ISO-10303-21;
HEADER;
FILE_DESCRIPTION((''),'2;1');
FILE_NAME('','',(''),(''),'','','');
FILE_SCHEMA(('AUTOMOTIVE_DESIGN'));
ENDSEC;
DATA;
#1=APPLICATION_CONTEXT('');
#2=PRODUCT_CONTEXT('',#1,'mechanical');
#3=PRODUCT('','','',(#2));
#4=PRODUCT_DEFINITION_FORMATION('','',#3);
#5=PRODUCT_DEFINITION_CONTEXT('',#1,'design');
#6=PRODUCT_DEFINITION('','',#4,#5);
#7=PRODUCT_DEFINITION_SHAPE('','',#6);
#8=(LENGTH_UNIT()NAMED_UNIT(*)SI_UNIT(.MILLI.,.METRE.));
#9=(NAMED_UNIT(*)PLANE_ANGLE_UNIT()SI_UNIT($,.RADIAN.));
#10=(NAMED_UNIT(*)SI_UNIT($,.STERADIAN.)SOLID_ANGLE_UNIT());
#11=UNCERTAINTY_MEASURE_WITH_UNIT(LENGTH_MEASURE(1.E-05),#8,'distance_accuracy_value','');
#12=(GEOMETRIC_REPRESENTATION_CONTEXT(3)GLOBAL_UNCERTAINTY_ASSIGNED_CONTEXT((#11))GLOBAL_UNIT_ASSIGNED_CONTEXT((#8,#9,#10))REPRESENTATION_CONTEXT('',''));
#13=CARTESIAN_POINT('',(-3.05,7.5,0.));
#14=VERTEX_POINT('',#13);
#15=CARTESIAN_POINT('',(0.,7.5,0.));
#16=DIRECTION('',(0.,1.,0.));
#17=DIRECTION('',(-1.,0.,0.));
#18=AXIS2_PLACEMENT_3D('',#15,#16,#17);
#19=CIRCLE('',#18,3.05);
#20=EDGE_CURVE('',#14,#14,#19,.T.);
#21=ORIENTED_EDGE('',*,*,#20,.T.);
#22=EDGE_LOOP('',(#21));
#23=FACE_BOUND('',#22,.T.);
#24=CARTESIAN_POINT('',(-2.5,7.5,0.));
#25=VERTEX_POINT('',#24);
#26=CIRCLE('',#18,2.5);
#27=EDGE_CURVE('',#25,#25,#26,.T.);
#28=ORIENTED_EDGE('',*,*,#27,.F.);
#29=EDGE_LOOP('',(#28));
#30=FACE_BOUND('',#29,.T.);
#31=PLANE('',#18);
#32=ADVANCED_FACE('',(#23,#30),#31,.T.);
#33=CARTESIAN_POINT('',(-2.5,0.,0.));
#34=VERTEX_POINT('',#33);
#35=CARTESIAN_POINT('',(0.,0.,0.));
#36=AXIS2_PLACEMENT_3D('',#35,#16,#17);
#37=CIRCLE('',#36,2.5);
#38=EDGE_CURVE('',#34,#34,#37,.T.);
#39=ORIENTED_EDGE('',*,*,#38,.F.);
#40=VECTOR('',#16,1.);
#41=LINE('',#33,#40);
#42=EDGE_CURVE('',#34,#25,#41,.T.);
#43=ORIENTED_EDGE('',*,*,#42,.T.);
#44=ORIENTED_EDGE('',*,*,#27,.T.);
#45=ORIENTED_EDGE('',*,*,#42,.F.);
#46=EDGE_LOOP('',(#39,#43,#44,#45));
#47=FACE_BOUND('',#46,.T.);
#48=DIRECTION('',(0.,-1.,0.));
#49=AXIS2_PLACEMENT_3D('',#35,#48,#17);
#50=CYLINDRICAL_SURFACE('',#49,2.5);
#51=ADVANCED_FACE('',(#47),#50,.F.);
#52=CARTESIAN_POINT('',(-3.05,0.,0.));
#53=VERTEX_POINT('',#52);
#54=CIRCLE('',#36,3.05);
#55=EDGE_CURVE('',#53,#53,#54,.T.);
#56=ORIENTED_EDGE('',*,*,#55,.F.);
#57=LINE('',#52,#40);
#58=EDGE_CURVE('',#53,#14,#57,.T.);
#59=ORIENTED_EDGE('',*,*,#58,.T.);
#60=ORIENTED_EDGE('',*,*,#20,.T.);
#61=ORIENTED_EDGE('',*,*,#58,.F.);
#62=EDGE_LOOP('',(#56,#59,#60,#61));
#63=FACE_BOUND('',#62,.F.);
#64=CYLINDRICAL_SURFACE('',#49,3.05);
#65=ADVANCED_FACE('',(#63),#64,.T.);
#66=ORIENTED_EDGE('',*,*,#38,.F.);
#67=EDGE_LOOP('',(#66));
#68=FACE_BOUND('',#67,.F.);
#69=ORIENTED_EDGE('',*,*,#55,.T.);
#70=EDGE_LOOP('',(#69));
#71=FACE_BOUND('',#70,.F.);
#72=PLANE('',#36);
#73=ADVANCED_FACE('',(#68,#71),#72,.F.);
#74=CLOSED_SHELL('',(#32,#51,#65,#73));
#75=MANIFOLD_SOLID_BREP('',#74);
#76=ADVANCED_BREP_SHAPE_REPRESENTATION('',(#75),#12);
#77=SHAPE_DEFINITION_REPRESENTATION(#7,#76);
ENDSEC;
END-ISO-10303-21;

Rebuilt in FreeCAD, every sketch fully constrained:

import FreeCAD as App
import Part
import Sketcher
Q = App.Units.Quantity

doc = App.newDocument("Part")
body = doc.addObject("PartDesign::Body", "Body")

# Sketch on XZ plane
sketch1 = body.newObject("Sketcher::SketchObject", "Sketch")
sketch1.AttachmentSupport = (doc.getObject("XZ_Plane"), [""])
sketch1.MapMode = "FlatFace"
sketch1.addGeometry([
    Part.Circle(App.Vector(0, 0, 0), App.Vector(0, 0, 1), 3.05),
    Part.Circle(App.Vector(0, 0, 0), App.Vector(0, 0, 1), 2.5),
], False)
sketch1.addConstraint([
    Sketcher.Constraint("Coincident", 0, 3, -1, 1),
    Sketcher.Constraint("Coincident", 1, 3, -1, 1),
    Sketcher.Constraint("Diameter", 1, Q("5 mm")),
    Sketcher.Constraint("Diameter", 0, Q("6.1 mm")),
])
pad1 = body.newObject("PartDesign::Pad", "Pad")
pad1.Profile = sketch1
pad1.Length = 7.5
pad1.Reversed = True

doc.recompute()
